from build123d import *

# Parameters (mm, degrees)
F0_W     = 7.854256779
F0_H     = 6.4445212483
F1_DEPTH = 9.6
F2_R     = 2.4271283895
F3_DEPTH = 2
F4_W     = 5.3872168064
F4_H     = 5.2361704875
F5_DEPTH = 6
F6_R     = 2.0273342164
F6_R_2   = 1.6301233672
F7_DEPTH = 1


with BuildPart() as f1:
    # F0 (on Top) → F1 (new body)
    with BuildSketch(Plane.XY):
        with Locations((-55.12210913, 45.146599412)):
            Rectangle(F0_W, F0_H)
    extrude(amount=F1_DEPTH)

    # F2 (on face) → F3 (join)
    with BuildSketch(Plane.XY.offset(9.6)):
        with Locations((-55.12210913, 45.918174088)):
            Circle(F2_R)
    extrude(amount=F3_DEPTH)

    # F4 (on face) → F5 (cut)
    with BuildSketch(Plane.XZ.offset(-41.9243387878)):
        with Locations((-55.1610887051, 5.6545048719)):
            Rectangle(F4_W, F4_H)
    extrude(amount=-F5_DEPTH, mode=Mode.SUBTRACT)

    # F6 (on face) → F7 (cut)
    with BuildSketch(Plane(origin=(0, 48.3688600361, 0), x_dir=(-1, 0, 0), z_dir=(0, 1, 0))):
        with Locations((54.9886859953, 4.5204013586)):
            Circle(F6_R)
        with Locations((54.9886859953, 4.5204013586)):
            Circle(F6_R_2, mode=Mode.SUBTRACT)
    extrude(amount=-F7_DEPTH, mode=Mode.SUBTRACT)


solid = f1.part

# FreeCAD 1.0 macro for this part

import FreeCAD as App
import Part
import Sketcher
Q = App.Units.Quantity


def add_polygon(sketch, points):
    """Adds a closed chain of lines whose ends are joined by coincident constraints."""
    first, n = sketch.GeometryCount, len(points)
    for a, b in zip(points, points[1:] + points[:1]):
        sketch.addGeometry(Part.LineSegment(App.Vector(*a, 0), App.Vector(*b, 0)), False)
    for i in range(n):
        sketch.addConstraint(Sketcher.Constraint("Coincident", first + i, 2, first + (i + 1) % n, 1))

doc = App.newDocument("Part")
body = doc.addObject("PartDesign::Body", "Body")

# Sketch on XY plane
sketch1 = body.newObject("Sketcher::SketchObject", "Sketch")
sketch1.AttachmentSupport = (doc.getObject("XY_Plane"), [""])
sketch1.MapMode = "FlatFace"
add_polygon(sketch1, [(-59.049238, 48.36886), (-59.049238, 41.924339), (-51.194981, 41.924339), (-51.194981, 48.36886)])  # lines 0-3
sketch1.addConstraint([
    Sketcher.Constraint("Vertical", 0),
    Sketcher.Constraint("Horizontal", 1),
    Sketcher.Constraint("Vertical", 2),
    Sketcher.Constraint("Horizontal", 3),
    Sketcher.Constraint("DistanceY", 0, 2, 0, 1, Q("6.444521 mm")),
    Sketcher.Constraint("DistanceX", 1, 1, 1, 2, Q("7.854257 mm")),
    Sketcher.Constraint("DistanceY", -1, 1, 0, 2, Q("41.924339 mm")),
    Sketcher.Constraint("DistanceX", 1, 2, -1, 1, Q("51.194981 mm")),
])
pad1 = body.newObject("PartDesign::Pad", "Pad")
pad1.Profile = sketch1
pad1.Length = 9.6

# Sketch on XY plane
sketch2 = body.newObject("Sketcher::SketchObject", "Sketch001")
sketch2.AttachmentSupport = (doc.getObject("XY_Plane"), [""])
sketch2.MapMode = "FlatFace"
sketch2.AttachmentOffset = App.Placement(App.Vector(0, 0, 9.6), App.Rotation())
sketch2.addGeometry(Part.Circle(App.Vector(-55.122109, 45.918174, 0), App.Vector(0, 0, 1), 2.427128), False)
sketch2.addConstraint([
    Sketcher.Constraint("Diameter", 0, Q("4.854257 mm")),
    Sketcher.Constraint("DistanceX", 0, 3, -1, 1, Q("55.122109 mm")),
    Sketcher.Constraint("DistanceY", -1, 1, 0, 3, Q("45.918174 mm")),
])
pad2 = body.newObject("PartDesign::Pad", "Pad001")
pad2.Profile = sketch2
pad2.Length = 2

# Sketch on XZ plane
sketch3 = body.newObject("Sketcher::SketchObject", "Sketch002")
sketch3.AttachmentSupport = (doc.getObject("XZ_Plane"), [""])
sketch3.MapMode = "FlatFace"
sketch3.AttachmentOffset = App.Placement(App.Vector(0, 0, -41.924339), App.Rotation())
add_polygon(sketch3, [(-57.854697, 8.27259), (-57.854697, 3.03642), (-52.46748, 3.03642), (-52.46748, 8.27259)])  # lines 0-3
sketch3.addConstraint([
    Sketcher.Constraint("Vertical", 0),
    Sketcher.Constraint("Horizontal", 1),
    Sketcher.Constraint("Vertical", 2),
    Sketcher.Constraint("Horizontal", 3),
    Sketcher.Constraint("DistanceY", 0, 2, 0, 1, Q("5.23617 mm")),
    Sketcher.Constraint("DistanceX", 1, 1, 1, 2, Q("5.387217 mm")),
    Sketcher.Constraint("DistanceY", -1, 1, 0, 2, Q("3.03642 mm")),
    Sketcher.Constraint("DistanceX", 1, 2, -1, 1, Q("52.46748 mm")),
])
pocket1 = body.newObject("PartDesign::Pocket", "Pocket")
pocket1.Profile = sketch3
pocket1.Length = 6

# Sketch on XZ plane
sketch4 = body.newObject("Sketcher::SketchObject", "Sketch003")
sketch4.AttachmentSupport = (doc.getObject("XZ_Plane"), [""])
sketch4.MapMode = "FlatFace"
sketch4.AttachmentOffset = App.Placement(App.Vector(0, 0, -48.36886), App.Rotation())
sketch4.addGeometry([
    Part.Circle(App.Vector(-54.988686, 4.520401, 0), App.Vector(0, 0, 1), 2.027334),
    Part.Circle(App.Vector(-54.988686, 4.520401, 0), App.Vector(0, 0, 1), 1.630123),
], False)
sketch4.addConstraint([
    Sketcher.Constraint("Coincident", 1, 3, 0, 3),
    Sketcher.Constraint("Diameter", 0, Q("4.054668 mm")),
    Sketcher.Constraint("Diameter", 1, Q("3.260247 mm")),
    Sketcher.Constraint("DistanceY", -1, 1, 0, 3, Q("4.520401 mm")),
    Sketcher.Constraint("DistanceX", 0, 3, -1, 1, Q("54.988686 mm")),
])
pocket2 = body.newObject("PartDesign::Pocket", "Pocket001")
pocket2.Profile = sketch4
pocket2.Length = 1
pocket2.Reversed = True

doc.recompute()
